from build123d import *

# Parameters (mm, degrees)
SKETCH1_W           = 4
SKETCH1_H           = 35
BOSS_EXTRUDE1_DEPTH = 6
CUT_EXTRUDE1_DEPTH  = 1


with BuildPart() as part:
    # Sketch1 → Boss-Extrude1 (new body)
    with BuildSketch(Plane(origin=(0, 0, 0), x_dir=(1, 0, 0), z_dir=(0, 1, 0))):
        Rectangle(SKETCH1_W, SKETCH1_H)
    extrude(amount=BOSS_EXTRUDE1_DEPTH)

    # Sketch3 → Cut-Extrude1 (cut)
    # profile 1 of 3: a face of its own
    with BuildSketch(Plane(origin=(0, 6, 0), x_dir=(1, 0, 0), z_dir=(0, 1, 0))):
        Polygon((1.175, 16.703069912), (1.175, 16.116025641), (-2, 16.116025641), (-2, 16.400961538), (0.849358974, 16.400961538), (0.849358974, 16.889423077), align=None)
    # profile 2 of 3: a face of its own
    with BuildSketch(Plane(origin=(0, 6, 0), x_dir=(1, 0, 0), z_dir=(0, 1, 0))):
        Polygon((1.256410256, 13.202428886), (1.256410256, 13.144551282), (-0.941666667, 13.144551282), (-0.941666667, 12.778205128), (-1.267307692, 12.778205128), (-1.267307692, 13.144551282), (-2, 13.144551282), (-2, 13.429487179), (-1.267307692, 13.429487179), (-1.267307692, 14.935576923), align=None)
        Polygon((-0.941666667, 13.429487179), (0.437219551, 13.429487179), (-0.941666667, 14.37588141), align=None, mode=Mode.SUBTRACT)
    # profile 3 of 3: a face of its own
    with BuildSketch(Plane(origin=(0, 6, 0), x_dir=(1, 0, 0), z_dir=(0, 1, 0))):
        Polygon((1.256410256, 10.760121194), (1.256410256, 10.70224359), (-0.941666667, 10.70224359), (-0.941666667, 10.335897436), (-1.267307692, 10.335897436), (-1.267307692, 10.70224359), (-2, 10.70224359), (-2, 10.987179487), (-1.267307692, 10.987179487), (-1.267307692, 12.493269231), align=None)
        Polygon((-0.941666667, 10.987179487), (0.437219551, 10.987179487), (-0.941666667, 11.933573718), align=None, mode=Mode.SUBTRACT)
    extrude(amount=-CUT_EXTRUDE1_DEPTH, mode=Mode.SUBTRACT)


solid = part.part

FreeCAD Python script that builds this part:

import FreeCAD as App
import Part
import Sketcher
from FreeCAD import Vector

doc = App.newDocument("Part")
body = doc.addObject("PartDesign::Body", "Body")

# Sketch on XZ plane
sketch1 = body.newObject("Sketcher::SketchObject", "Sketch")
sketch1.AttachmentSupport = (doc.getObject("XZ_Plane"), [""])
sketch1.MapMode = "FlatFace"
sketch1.addGeometry(Part.LineSegment(Vector(-2, -17.5, 0), Vector(-2, 17.5, 0)), False)
sketch1.addGeometry(Part.LineSegment(Vector(-2, 17.5, 0), Vector(2, 17.5, 0)), False)
sketch1.addGeometry(Part.LineSegment(Vector(2, 17.5, 0), Vector(2, -17.5, 0)), False)
sketch1.addGeometry(Part.LineSegment(Vector(2, -17.5, 0), Vector(-2, -17.5, 0)), False)
sketch1.addConstraint(Sketcher.Constraint("Coincident", 0, 2, 1, 1))
sketch1.addConstraint(Sketcher.Constraint("Coincident", 1, 2, 2, 1))
sketch1.addConstraint(Sketcher.Constraint("Coincident", 2, 2, 3, 1))
sketch1.addConstraint(Sketcher.Constraint("Coincident", 3, 2, 0, 1))
sketch1.addConstraint(Sketcher.Constraint("Vertical", 0))
sketch1.addConstraint(Sketcher.Constraint("Horizontal", 1))
sketch1.addConstraint(Sketcher.Constraint("Vertical", 2))
sketch1.addConstraint(Sketcher.Constraint("Horizontal", 3))
sketch1.addConstraint(Sketcher.Constraint("Symmetric", 0, 2, 2, 2, -1, 1))
sketch1.addConstraint(Sketcher.Constraint("DistanceX", 1, 1, 1, 2, 4.0))
sketch1.addConstraint(Sketcher.Constraint("DistanceY", 0, 1, 0, 2, 35.0))
pad1 = body.newObject("PartDesign::Pad", "Pad")
pad1.Profile = sketch1
pad1.Length = 6
pad1.Reversed = True

# Sketch on XZ plane
sketch2 = body.newObject("Sketcher::SketchObject", "Sketch001")
sketch2.AttachmentSupport = (doc.getObject("XZ_Plane"), [""])
sketch2.MapMode = "FlatFace"
sketch2.AttachmentOffset = App.Placement(Vector(0, 0, -6), App.Rotation())
sketch2.addGeometry(Part.LineSegment(Vector(1.18, -16.12, 0), Vector(1.18, -16.7, 0)), False)
sketch2.addGeometry(Part.LineSegment(Vector(1.18, -16.7, 0), Vector(0.85, -16.89, 0)), False)
sketch2.addGeometry(Part.LineSegment(Vector(0.85, -16.89, 0), Vector(0.85, -16.4, 0)), False)
sketch2.addGeometry(Part.LineSegment(Vector(0.85, -16.4, 0), Vector(-2, -16.4, 0)), False)
sketch2.addGeometry(Part.LineSegment(Vector(-2, -16.4, 0), Vector(-2, -16.12, 0)), False)
sketch2.addGeometry(Part.LineSegment(Vector(-2, -16.12, 0), Vector(1.18, -16.12, 0)), False)
sketch2.addGeometry(Part.LineSegment(Vector(1.26, -13.14, 0), Vector(1.26, -13.2, 0)), False)
sketch2.addGeometry(Part.LineSegment(Vector(1.26, -13.2, 0), Vector(-1.27, -14.94, 0)), False)
sketch2.addGeometry(Part.LineSegment(Vector(-1.27, -14.94, 0), Vector(-1.27, -13.43, 0)), False)
sketch2.addGeometry(Part.LineSegment(Vector(-1.27, -13.43, 0), Vector(-2, -13.43, 0)), False)
sketch2.addGeometry(Part.LineSegment(Vector(-2, -13.43, 0), Vector(-2, -13.14, 0)), False)
sketch2.addGeometry(Part.LineSegment(Vector(-2, -13.14, 0), Vector(-1.27, -13.14, 0)), False)
sketch2.addGeometry(Part.LineSegment(Vector(-1.27, -13.14, 0), Vector(-1.27, -12.78, 0)), False)
sketch2.addGeometry(Part.LineSegment(Vector(-1.27, -12.78, 0), Vector(-0.94, -12.78, 0)), False)
sketch2.addGeometry(Part.LineSegment(Vector(-0.94, -12.78, 0), Vector(-0.94, -13.14, 0)), False)
sketch2.addGeometry(Part.LineSegment(Vector(-0.94, -13.14, 0), Vector(1.26, -13.14, 0)), False)
sketch2.addGeometry(Part.LineSegment(Vector(-0.94, -13.43, 0), Vector(-0.94, -14.38, 0)), False)
sketch2.addGeometry(Part.LineSegment(Vector(-0.94, -14.38, 0), Vector(0.44, -13.43, 0)), False)
sketch2.addGeometry(Part.LineSegment(Vector(0.44, -13.43, 0), Vector(-0.94, -13.43, 0)), False)
sketch2.addGeometry(Part.LineSegment(Vector(1.26, -10.7, 0), Vector(1.26, -10.76, 0)), False)
sketch2.addGeometry(Part.LineSegment(Vector(1.26, -10.76, 0), Vector(-1.27, -12.49, 0)), False)
sketch2.addGeometry(Part.LineSegment(Vector(-1.27, -12.49, 0), Vector(-1.27, -10.99, 0)), False)
sketch2.addGeometry(Part.LineSegment(Vector(-1.27, -10.99, 0), Vector(-2, -10.99, 0)), False)
sketch2.addGeometry(Part.LineSegment(Vector(-2, -10.99, 0), Vector(-2, -10.7, 0)), False)
sketch2.addGeometry(Part.LineSegment(Vector(-2, -10.7, 0), Vector(-1.27, -10.7, 0)), False)
sketch2.addGeometry(Part.LineSegment(Vector(-1.27, -10.7, 0), Vector(-1.27, -10.34, 0)), False)
sketch2.addGeometry(Part.LineSegment(Vector(-1.27, -10.34, 0), Vector(-0.94, -10.34, 0)), False)
sketch2.addGeometry(Part.LineSegment(Vector(-0.94, -10.34, 0), Vector(-0.94, -10.7, 0)), False)
sketch2.addGeometry(Part.LineSegment(Vector(-0.94, -10.7, 0), Vector(1.26, -10.7, 0)), False)
sketch2.addGeometry(Part.LineSegment(Vector(-0.94, -10.99, 0), Vector(-0.94, -11.93, 0)), False)
sketch2.addGeometry(Part.LineSegment(Vector(-0.94, -11.93, 0), Vector(0.44, -10.99, 0)), False)
sketch2.addGeometry(Part.LineSegment(Vector(0.44, -10.99, 0), Vector(-0.94, -10.99, 0)), False)
sketch2.addConstraint(Sketcher.Constraint("Coincident", 0, 2, 1, 1))
sketch2.addConstraint(Sketcher.Constraint("Coincident", 1, 2, 2, 1))
sketch2.addConstraint(Sketcher.Constraint("Coincident", 2, 2, 3, 1))
sketch2.addConstraint(Sketcher.Constraint("Coincident", 3, 2, 4, 1))
sketch2.addConstraint(Sketcher.Constraint("Coincident", 4, 2, 5, 1))
sketch2.addConstraint(Sketcher.Constraint("Coincident", 5, 2, 0, 1))
sketch2.addConstraint(Sketcher.Constraint("Coincident", 6, 2, 7, 1))
sketch2.addConstraint(Sketcher.Constraint("Coincident", 7, 2, 8, 1))
sketch2.addConstraint(Sketcher.Constraint("Coincident", 8, 2, 9, 1))
sketch2.addConstraint(Sketcher.Constraint("Coincident", 9, 2, 10, 1))
sketch2.addConstraint(Sketcher.Constraint("Coincident", 10, 2, 11, 1))
sketch2.addConstraint(Sketcher.Constraint("Coincident", 11, 2, 12, 1))
sketch2.addConstraint(Sketcher.Constraint("Coincident", 12, 2, 13, 1))
sketch2.addConstraint(Sketcher.Constraint("Coincident", 13, 2, 14, 1))
sketch2.addConstraint(Sketcher.Constraint("Coincident", 14, 2, 15, 1))
sketch2.addConstraint(Sketcher.Constraint("Coincident", 15, 2, 6, 1))
sketch2.addConstraint(Sketcher.Constraint("Coincident", 16, 2, 17, 1))
sketch2.addConstraint(Sketcher.Constraint("Coincident", 17, 2, 18, 1))
sketch2.addConstraint(Sketcher.Constraint("Coincident", 18, 2, 16, 1))
sketch2.addConstraint(Sketcher.Constraint("Coincident", 19, 2, 20, 1))
sketch2.addConstraint(Sketcher.Constraint("Coincident", 20, 2, 21, 1))
sketch2.addConstraint(Sketcher.Constraint("Coincident", 21, 2, 22, 1))
sketch2.addConstraint(Sketcher.Constraint("Coincident", 22, 2, 23, 1))
sketch2.addConstraint(Sketcher.Constraint("Coincident", 23, 2, 24, 1))
sketch2.addConstraint(Sketcher.Constraint("Coincident", 24, 2, 25, 1))
sketch2.addConstraint(Sketcher.Constraint("Coincident", 25, 2, 26, 1))
sketch2.addConstraint(Sketcher.Constraint("Coincident", 26, 2, 27, 1))
sketch2.addConstraint(Sketcher.Constraint("Coincident", 27, 2, 28, 1))
sketch2.addConstraint(Sketcher.Constraint("Coincident", 28, 2, 19, 1))
sketch2.addConstraint(Sketcher.Constraint("Coincident", 29, 2, 30, 1))
sketch2.addConstraint(Sketcher.Constraint("Coincident", 30, 2, 31, 1))
sketch2.addConstraint(Sketcher.Constraint("Coincident", 31, 2, 29, 1))
sketch2.addConstraint(Sketcher.Constraint("Vertical", 0))
sketch2.addConstraint(Sketcher.Constraint("Vertical", 2))
sketch2.addConstraint(Sketcher.Constraint("Horizontal", 3))
sketch2.addConstraint(Sketcher.Constraint("Vertical", 4))
sketch2.addConstraint(Sketcher.Constraint("Horizontal", 5))
sketch2.addConstraint(Sketcher.Constraint("Vertical", 6))
sketch2.addConstraint(Sketcher.Constraint("Vertical", 8))
sketch2.addConstraint(Sketcher.Constraint("Horizontal", 9))
sketch2.addConstraint(Sketcher.Constraint("Vertical", 10))
sketch2.addConstraint(Sketcher.Constraint("Horizontal", 11))
sketch2.addConstraint(Sketcher.Constraint("Vertical", 12))
sketch2.addConstraint(Sketcher.Constraint("Horizontal", 13))
sketch2.addConstraint(Sketcher.Constraint("Vertical", 14))
sketch2.addConstraint(Sketcher.Constraint("Horizontal", 15))
sketch2.addConstraint(Sketcher.Constraint("Vertical", 16))
sketch2.addConstraint(Sketcher.Constraint("Horizontal", 18))
sketch2.addConstraint(Sketcher.Constraint("Vertical", 19))
sketch2.addConstraint(Sketcher.Constraint("Vertical", 21))
sketch2.addConstraint(Sketcher.Constraint("Horizontal", 22))
sketch2.addConstraint(Sketcher.Constraint("Vertical", 23))
sketch2.addConstraint(Sketcher.Constraint("Horizontal", 24))
sketch2.addConstraint(Sketcher.Constraint("Vertical", 25))
sketch2.addConstraint(Sketcher.Constraint("Horizontal", 26))
sketch2.addConstraint(Sketcher.Constraint("Vertical", 27))
sketch2.addConstraint(Sketcher.Constraint("Horizontal", 28))
sketch2.addConstraint(Sketcher.Constraint("Vertical", 29))
sketch2.addConstraint(Sketcher.Constraint("Horizontal", 31))
sketch2.addConstraint(Sketcher.Constraint("Parallel", 7, 20))
sketch2.addConstraint(Sketcher.Constraint("Parallel", 17, 30))
sketch2.addConstraint(Sketcher.Constraint("Horizontal", 11, 2, 14, 2))
sketch2.addConstraint(Sketcher.Constraint("Horizontal", 9, 2, 17, 2))
sketch2.addConstraint(Sketcher.Constraint("Horizontal", 24, 2, 27, 2))
sketch2.addConstraint(Sketcher.Constraint("Horizontal", 22, 2, 30, 2))
sketch2.addConstraint(Sketcher.Constraint("Vertical", 4, 2, 9, 2))
sketch2.addConstraint(Sketcher.Constraint("Vertical", 8, 2, 11, 2))
sketch2.addConstraint(Sketcher.Constraint("Vertical", 14, 2, 16, 2))
sketch2.addConstraint(Sketcher.Constraint("Vertical", 15, 2, 19, 2))
sketch2.addConstraint(Sketcher.Constraint("Vertical", 12, 2, 20, 2))
sketch2.addConstraint(Sketcher.Constraint("Vertical", 10, 2, 22, 2))
sketch2.addConstraint(Sketcher.Constraint("Vertical", 21, 2, 24, 2))
sketch2.addConstraint(Sketcher.Constraint("Vertical", 18, 2, 26, 2))
sketch2.addConstraint(Sketcher.Constraint("Vertical", 27, 2, 29, 2))
sketch2.addConstraint(Sketcher.Constraint("Vertical", 17, 2, 30, 2))
sketch2.addConstraint(Sketcher.Constraint("Equal", 4, 10))
sketch2.addConstraint(Sketcher.Constraint("Equal", 6, 19))
sketch2.addConstraint(Sketcher.Constraint("Equal", 8, 21))
sketch2.addConstraint(Sketcher.Constraint("Equal", 14, 25))
sketch2.addConstraint(Sketcher.Constraint("DistanceX", 3, 2, -1, 1, 2.0))
sketch2.addConstraint(Sketcher.Constraint("DistanceX", 5, 1, 5, 2, 3.175))
sketch2.addConstraint(Sketcher.Constraint("DistanceX", 3, 2, 3, 1, 2.849359))
sketch2.addConstraint(Sketcher.Constraint("DistanceX", 13, 1, 13, 2, 0.325641))
sketch2.addConstraint(Sketcher.Constraint("DistanceY", 2, 1, 2, 2, 0.488462))
sketch2.addConstraint(Sketcher.Constraint("DistanceY", 8, 1, 8, 2, 1.50609))
sketch2.addConstraint(Sketcher.Constraint("Distance", 7, 3.061528))
sketch2.addConstraint(Sketcher.Constraint("Distance", 17, 1.67242))
sketch2.addConstraint(Sketcher.Constraint("DistanceX", 9, 2, 9, 1, 0.732692))
sketch2.addConstraint(Sketcher.Constraint("DistanceX", 15, 1, 15, 2, 2.198077))
sketch2.addConstraint(Sketcher.Constraint("DistanceX", 18, 2, 18, 1, 1.378886))
sketch2.addConstraint(Sketcher.Constraint("DistanceY", 0, 2, 0, 1, 0.587044))
sketch2.addConstraint(Sketcher.Constraint("DistanceY", 4, 1, 4, 2, 0.284936))
sketch2.addConstraint(Sketcher.Constraint("DistanceY", 12, 1, 12, 2, 0.366346))
sketch2.addConstraint(Sketcher.Constraint("DistanceY", 0, 2, -1, 1, 16.70307))
sketch2.addConstraint(Sketcher.Constraint("DistanceY", 6, 2, -1, 1, 13.202429))
sketch2.addConstraint(Sketcher.Constraint("DistanceY", 19, 2, -1, 1, 10.760121))
pocket1 = body.newObject("PartDesign::Pocket", "Pocket")
pocket1.Profile = sketch2
pocket1.Length = 1
pocket1.Reversed = True

doc.recompute()
